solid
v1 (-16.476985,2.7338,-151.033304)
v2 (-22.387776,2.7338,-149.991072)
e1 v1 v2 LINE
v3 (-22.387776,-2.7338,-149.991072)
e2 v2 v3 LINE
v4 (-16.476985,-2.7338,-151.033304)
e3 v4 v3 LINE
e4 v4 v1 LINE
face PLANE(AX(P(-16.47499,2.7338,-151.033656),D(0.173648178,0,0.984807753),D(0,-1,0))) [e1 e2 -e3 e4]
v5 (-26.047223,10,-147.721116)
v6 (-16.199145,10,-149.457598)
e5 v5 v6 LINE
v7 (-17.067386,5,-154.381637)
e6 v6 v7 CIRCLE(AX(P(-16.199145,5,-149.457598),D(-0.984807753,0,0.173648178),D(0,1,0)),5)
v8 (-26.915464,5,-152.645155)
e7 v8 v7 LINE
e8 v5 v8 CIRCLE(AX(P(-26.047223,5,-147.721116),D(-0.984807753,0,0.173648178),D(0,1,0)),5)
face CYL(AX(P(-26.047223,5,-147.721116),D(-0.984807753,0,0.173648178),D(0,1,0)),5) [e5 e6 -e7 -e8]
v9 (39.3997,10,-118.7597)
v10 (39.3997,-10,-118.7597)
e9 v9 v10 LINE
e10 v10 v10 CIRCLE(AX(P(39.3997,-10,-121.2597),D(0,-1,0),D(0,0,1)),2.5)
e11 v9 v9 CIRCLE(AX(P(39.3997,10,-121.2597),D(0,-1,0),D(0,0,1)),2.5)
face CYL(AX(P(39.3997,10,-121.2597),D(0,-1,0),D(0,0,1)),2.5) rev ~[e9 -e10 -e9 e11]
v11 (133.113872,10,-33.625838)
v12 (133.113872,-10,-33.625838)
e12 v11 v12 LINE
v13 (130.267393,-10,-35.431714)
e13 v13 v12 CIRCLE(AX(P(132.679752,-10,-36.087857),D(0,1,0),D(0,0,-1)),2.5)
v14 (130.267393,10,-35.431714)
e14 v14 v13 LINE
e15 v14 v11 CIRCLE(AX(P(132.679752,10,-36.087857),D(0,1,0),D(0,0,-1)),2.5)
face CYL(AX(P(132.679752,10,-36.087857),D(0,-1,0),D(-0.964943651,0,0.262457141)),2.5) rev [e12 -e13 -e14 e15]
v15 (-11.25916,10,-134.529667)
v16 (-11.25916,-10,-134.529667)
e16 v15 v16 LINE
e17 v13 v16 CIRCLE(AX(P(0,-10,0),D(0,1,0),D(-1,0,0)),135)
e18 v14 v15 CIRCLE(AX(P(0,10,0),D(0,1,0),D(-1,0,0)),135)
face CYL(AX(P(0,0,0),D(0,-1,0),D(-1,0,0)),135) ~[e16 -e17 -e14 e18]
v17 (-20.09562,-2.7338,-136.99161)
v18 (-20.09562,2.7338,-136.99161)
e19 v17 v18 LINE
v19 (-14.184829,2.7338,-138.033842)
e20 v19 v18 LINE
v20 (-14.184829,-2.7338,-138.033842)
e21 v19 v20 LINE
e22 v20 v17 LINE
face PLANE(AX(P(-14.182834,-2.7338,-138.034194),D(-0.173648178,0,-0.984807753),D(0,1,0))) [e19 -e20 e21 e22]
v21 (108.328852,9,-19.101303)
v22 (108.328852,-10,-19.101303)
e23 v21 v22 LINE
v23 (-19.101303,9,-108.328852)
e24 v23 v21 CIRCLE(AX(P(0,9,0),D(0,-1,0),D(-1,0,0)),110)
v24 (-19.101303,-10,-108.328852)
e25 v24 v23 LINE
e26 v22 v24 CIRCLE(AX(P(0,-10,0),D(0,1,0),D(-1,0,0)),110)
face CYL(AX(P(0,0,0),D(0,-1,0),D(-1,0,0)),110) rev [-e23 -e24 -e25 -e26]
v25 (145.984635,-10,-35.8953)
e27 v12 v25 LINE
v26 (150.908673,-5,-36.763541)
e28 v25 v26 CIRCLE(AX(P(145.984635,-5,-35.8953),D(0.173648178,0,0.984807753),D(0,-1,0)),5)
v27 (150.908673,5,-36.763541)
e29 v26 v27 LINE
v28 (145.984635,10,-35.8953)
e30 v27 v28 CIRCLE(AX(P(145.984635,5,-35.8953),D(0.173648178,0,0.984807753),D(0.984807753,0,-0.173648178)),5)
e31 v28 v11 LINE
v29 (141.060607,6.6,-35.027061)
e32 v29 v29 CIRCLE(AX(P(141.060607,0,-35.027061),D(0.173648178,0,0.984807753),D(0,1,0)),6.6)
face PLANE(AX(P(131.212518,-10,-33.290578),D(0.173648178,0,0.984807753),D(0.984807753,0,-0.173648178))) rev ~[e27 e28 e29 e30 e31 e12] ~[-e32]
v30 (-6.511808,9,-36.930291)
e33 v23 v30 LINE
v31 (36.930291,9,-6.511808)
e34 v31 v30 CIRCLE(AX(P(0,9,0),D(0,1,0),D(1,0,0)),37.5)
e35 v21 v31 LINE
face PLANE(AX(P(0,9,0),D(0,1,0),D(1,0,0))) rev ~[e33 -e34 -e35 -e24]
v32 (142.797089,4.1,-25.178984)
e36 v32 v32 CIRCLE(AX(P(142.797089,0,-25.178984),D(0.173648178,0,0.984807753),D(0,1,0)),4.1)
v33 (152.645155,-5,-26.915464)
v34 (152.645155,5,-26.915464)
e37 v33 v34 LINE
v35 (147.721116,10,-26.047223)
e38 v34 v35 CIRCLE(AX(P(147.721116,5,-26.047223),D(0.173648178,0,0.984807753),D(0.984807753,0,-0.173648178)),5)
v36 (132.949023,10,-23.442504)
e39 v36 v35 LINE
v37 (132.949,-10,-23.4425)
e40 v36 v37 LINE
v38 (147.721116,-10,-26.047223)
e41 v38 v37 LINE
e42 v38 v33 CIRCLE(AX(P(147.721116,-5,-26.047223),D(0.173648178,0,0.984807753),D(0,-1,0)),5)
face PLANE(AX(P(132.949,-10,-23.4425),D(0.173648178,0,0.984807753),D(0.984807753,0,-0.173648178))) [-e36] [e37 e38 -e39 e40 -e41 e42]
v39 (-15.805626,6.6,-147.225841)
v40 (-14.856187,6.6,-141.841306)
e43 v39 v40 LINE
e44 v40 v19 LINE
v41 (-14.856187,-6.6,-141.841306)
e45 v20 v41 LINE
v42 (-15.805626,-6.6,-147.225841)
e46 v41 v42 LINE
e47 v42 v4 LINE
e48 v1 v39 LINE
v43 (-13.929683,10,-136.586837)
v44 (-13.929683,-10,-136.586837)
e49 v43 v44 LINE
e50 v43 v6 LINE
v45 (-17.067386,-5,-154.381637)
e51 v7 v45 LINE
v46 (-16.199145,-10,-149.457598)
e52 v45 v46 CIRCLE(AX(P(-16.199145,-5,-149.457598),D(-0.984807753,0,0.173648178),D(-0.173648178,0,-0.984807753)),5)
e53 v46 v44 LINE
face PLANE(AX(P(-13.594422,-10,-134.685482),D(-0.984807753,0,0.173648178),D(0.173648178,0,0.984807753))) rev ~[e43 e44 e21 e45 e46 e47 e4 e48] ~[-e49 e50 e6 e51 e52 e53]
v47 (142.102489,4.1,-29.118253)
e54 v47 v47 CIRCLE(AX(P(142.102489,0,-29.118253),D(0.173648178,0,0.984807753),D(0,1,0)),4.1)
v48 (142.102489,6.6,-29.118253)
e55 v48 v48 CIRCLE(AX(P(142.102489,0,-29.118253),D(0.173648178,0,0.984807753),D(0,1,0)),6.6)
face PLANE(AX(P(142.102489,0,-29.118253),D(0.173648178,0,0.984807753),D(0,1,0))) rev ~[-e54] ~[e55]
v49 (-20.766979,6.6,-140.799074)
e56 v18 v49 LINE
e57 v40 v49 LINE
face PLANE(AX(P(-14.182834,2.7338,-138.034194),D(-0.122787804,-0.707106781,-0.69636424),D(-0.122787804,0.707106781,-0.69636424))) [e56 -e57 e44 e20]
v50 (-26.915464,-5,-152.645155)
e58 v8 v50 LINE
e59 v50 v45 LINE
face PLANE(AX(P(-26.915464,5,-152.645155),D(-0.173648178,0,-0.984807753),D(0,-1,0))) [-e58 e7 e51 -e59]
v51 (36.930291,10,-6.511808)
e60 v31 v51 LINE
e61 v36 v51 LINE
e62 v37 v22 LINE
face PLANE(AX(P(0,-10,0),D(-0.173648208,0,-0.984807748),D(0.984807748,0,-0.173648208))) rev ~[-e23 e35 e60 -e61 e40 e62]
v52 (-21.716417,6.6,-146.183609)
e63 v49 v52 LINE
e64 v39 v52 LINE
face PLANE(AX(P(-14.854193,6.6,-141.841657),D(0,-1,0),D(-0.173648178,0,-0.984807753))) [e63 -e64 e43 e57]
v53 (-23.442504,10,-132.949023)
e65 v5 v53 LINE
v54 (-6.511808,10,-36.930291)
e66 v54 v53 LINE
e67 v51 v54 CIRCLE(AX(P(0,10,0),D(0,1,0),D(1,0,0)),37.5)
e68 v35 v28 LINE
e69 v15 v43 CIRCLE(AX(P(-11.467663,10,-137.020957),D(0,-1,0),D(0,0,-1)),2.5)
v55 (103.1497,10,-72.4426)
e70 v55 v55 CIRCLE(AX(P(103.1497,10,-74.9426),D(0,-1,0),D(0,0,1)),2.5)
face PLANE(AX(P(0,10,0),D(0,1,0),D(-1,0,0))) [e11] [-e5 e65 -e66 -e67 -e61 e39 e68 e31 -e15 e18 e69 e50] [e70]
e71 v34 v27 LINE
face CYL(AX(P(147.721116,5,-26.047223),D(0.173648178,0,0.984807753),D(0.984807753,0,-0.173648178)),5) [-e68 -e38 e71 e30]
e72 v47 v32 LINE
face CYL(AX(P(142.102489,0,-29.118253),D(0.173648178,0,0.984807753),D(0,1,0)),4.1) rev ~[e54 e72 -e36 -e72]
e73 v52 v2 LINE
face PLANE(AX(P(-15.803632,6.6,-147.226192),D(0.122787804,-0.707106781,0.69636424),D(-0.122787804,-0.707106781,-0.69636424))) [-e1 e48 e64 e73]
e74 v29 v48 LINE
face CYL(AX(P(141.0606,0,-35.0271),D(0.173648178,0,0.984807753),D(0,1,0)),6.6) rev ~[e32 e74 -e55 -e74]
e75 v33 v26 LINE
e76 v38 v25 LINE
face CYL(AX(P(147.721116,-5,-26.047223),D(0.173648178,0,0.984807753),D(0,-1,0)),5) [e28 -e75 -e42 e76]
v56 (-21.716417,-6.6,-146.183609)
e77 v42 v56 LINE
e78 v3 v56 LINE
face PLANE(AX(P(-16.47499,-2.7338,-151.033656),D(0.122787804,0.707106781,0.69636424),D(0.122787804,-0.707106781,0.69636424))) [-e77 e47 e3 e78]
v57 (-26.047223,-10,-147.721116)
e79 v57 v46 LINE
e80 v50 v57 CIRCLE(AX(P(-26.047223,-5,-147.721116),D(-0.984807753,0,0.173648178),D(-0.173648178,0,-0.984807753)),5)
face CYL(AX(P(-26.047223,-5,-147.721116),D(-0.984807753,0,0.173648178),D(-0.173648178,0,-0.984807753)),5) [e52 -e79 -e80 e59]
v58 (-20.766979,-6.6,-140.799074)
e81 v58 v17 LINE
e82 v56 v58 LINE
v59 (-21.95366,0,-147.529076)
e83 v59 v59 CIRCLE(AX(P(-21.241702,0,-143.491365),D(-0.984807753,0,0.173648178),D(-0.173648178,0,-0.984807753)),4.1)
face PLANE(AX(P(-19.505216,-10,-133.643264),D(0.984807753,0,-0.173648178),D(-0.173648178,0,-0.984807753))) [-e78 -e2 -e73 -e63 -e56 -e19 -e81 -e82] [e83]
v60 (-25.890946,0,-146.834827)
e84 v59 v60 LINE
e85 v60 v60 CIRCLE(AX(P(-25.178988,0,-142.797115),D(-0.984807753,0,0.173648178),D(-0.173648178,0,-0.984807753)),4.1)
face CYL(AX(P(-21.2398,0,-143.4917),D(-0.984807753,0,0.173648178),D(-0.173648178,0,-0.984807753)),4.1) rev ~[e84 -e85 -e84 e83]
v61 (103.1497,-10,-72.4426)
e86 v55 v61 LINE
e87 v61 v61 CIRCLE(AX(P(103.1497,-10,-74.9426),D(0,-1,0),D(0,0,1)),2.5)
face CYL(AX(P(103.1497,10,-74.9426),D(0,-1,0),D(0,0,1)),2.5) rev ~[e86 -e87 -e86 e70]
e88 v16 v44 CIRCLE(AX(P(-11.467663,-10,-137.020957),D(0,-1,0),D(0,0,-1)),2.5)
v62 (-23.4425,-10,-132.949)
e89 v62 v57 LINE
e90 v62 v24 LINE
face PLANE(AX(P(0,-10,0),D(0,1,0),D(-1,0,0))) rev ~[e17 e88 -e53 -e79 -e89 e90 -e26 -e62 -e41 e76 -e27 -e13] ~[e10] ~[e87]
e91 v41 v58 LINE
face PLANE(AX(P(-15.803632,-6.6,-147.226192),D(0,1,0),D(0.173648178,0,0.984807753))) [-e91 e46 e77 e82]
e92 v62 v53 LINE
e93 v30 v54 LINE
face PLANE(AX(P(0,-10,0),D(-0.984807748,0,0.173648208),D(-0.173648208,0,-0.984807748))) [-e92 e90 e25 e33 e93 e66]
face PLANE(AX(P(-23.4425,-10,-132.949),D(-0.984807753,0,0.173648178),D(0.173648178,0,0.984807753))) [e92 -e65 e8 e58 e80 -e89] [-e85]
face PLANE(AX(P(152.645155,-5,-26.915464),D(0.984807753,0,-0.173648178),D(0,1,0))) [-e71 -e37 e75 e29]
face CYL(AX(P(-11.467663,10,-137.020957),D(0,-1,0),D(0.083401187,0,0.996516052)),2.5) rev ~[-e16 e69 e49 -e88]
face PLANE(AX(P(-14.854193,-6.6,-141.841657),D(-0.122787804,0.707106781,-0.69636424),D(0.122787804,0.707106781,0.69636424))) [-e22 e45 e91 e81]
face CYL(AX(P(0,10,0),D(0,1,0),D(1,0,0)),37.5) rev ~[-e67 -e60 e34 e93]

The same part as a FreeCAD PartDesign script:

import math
import FreeCAD as App
import Part
import Sketcher

V = App.Vector
Q = App.Units.Quantity


def edges_at(feature, points):
    """Names of the edges that pass closest to the given points."""
    edges = feature.Shape.Edges
    near = lambda p: min(range(len(edges)), key=lambda i: edges[i].distToShape(Part.Vertex(*p))[0])
    return sorted({f"Edge{near(p) + 1}" for p in points})


def add_polygon(sketch, points):
    """Adds a closed chain of lines whose ends are joined by coincident constraints."""
    first, n = sketch.GeometryCount, len(points)
    for a, b in zip(points, points[1:] + points[:1]):
        sketch.addGeometry(Part.LineSegment(App.Vector(*a, 0), App.Vector(*b, 0)), False)
    for i in range(n):
        sketch.addConstraint(Sketcher.Constraint("Coincident", first + i, 2, first + (i + 1) % n, 1))

doc = App.newDocument("Part")
body = doc.addObject("PartDesign::Body", "Body")

sketch1 = body.newObject("Sketcher::SketchObject", "Sketch")
sketch1.AttachmentSupport = (doc.getObject("XZ_Plane"), [""])
sketch1.MapMode = "FlatFace"
sketch1.addGeometry([
    Part.Circle(V(0, 0, 0), V(0, 0, 1), 135),
    Part.Circle(V(0, 0, 0), V(0, 0, 1), 110),
], False)
sketch1.addConstraint([
    Sketcher.Constraint("Coincident", 0, 3, -1, 1),
    Sketcher.Constraint("Coincident", 1, 3, -1, 1),
    Sketcher.Constraint("Diameter", 0, 270.0),
    Sketcher.Constraint("Diameter", 1, 220.0),
])
pad1 = body.newObject("PartDesign::Pad", "Pad")
pad1.Profile = sketch1
pad1.Length = 20
pad1.Midplane = True

sketch2 = body.newObject("Sketcher::SketchObject", "Sketch001")
sketch2.AttachmentSupport = (doc.getObject("XZ_Plane"), [""])
sketch2.MapMode = "FlatFace"
sketch2.AttachmentOffset = App.Placement(V(0, 0, -10), App.Rotation())
sketch2.addGeometry([
    Part.Circle(V(0, 0, 0), V(0, 0, 1), 135),
    Part.Circle(V(0, 0, 0), V(0, 0, 1), 37.5),
], False)
sketch2.addConstraint([
    Sketcher.Constraint("Coincident", 0, 3, -1, 1),
    Sketcher.Constraint("Coincident", 1, 3, -1, 1),
    Sketcher.Constraint("Diameter", 0, 270.0),
    Sketcher.Constraint("Diameter", 1, 75.0),
])
pad2 = body.newObject("PartDesign::Pad", "Pad001")
pad2.Profile = sketch2
pad2.Length = 1

sketch3 = body.newObject("Sketcher::SketchObject", "Sketch002")
sketch3.AttachmentSupport = (doc.getObject("XZ_Plane"), [""])
sketch3.MapMode = "FlatFace"
sketch3.AttachmentOffset = App.Placement(V(0, 0, -10), App.Rotation())
sketch3.addGeometry([
    Part.Circle(V(127.5, 0, 0), V(0, 0, 1), 2.5),
    Part.Circle(V(103.1497, 74.9426, 0), V(0, 0, 1), 2.5),
    Part.Circle(V(39.3997, 121.2597, 0), V(0, 0, 1), 2.5),
    Part.Circle(V(-39.3997, 121.2597, 0), V(0, 0, 1), 2.5),
    Part.Circle(V(-103.1497, 74.9426, 0), V(0, 0, 1), 2.5),
    Part.Circle(V(-127.5, 0, 0), V(0, 0, 1), 2.5),
    Part.Circle(V(-103.1497, -74.9426, 0), V(0, 0, 1), 2.5),
    Part.Circle(V(-39.3997, -121.2597, 0), V(0, 0, 1), 2.5),
    Part.Circle(V(39.3997, -121.2597, 0), V(0, 0, 1), 2.5),
    Part.Circle(V(103.1497, -74.9426, 0), V(0, 0, 1), 2.5),
], False)
sketch3.addConstraint([
    Sketcher.Constraint("Equal", 0, 1),
    Sketcher.Constraint("Equal", 1, 2),
    Sketcher.Constraint("Equal", 2, 3),
    Sketcher.Constraint("Equal", 3, 4),
    Sketcher.Constraint("Equal", 4, 5),
    Sketcher.Constraint("Equal", 5, 6),
    Sketcher.Constraint("Equal", 6, 7),
    Sketcher.Constraint("Equal", 7, 8),
    Sketcher.Constraint("Equal", 8, 9),
    Sketcher.Constraint("Symmetric", 0, 3, 5, 3, -1, 1),
    Sketcher.Constraint("Symmetric", 1, 3, 6, 3, -1, 1),
    Sketcher.Constraint("Symmetric", 2, 3, 7, 3, -1, 1),
    Sketcher.Constraint("Symmetric", 3, 3, 8, 3, -1, 1),
    Sketcher.Constraint("Symmetric", 4, 3, 9, 3, -1, 1),
    Sketcher.Constraint("Symmetric", 2, 3, 3, 3, -2),
    Sketcher.Constraint("Symmetric", 1, 3, 4, 3, -2),
    Sketcher.Constraint("PointOnObject", 0, 3, -1),
    Sketcher.Constraint("Diameter", 0, 5.0),
    Sketcher.Constraint("DistanceX", 5, 3, 0, 3, 255.0),
    Sketcher.Constraint("DistanceX", 2, 3, 1, 3, 63.75),
    Sketcher.Constraint("DistanceY", 1, 3, 2, 3, 46.317),
    Sketcher.Constraint("DistanceX", -1, 1, 1, 3, 103.1497),
    Sketcher.Constraint("DistanceY", -1, 1, 1, 3, 74.9426),
])
doc.recompute()
hole = body.newObject("PartDesign::Hole", "Hole")
hole.Profile = sketch3
hole.ThreadType = "None"
hole.Diameter = 5
hole.DepthType = "ThroughAll"
hole.Reversed = True

sketch4 = body.newObject("Sketcher::SketchObject", "Sketch003")
sketch4.AttachmentSupport = (doc.getObject("XZ_Plane"), [""])
sketch4.MapMode = "FlatFace"
sketch4.AttachmentOffset = App.Placement(V(0, 0, 10), App.Rotation())
sketch4.addGeometry([
    Part.ArcOfCircle(Part.Circle(V(0, 0, 0), V(0, 0, 1), 135), math.radians(-10.000002), math.radians(259.999998)),
    Part.LineSegment(V(-23.4425, -132.949, 0), V(0, 0, 0)),
    Part.LineSegment(V(0, 0, 0), V(132.949, -23.4425, 0)),
], False)
sketch4.addConstraint([
    Sketcher.Constraint("Coincident", 0, 2, 1, 1),
    Sketcher.Constraint("Coincident", 1, 2, 2, 1),
    Sketcher.Constraint("Coincident", 2, 2, 0, 1),
    Sketcher.Constraint("Coincident", 0, 3, -1, 1),
    Sketcher.Constraint("Coincident", 1, 2, -1, 1),
    Sketcher.Constraint("Perpendicular", 1, 2),
    Sketcher.Constraint("Radius", 0, 135.0),
    Sketcher.Constraint("Angle", 2, Q("-10 deg")),
])
pocket1 = body.newObject("PartDesign::Pocket", "Pocket")
pocket1.Profile = sketch4
pocket1.Type = "ThroughAll"

sketch5 = body.newObject("Sketcher::SketchObject", "Sketch004")
sketch5.Placement = App.Placement(V(-23.4425, -10, -132.949), App.Rotation(V(0.173648178, 0, 0.984807753), V(0, 1, 0), V(-0.984807753, 0, 0.173648178), "ZXY"))
sketch5.addGeometry([
    Part.LineSegment(V(2.5, 0, 0), V(2.5, 20, 0)),
    Part.LineSegment(V(2.5, 20, 0), V(-15, 20, 0)),
    Part.ArcOfCircle(Part.Circle(V(-15, 15, 0), V(0, 0, 1), 5), math.radians(90), math.radians(180)),
    Part.LineSegment(V(-20, 15, 0), V(-20, 5, 0)),
    Part.ArcOfCircle(Part.Circle(V(-15, 5, 0), V(0, 0, 1), 5), math.radians(180), math.radians(270)),
    Part.LineSegment(V(-15, 0, 0), V(2.5, 0, 0)),
], False)
sketch5.addConstraint([
    Sketcher.Constraint("Coincident", 0, 2, 1, 1),
    Sketcher.Constraint("Tangent", 1, 2, 2, 1),
    Sketcher.Constraint("Tangent", 2, 2, 3, 1),
    Sketcher.Constraint("Tangent", 3, 2, 4, 1),
    Sketcher.Constraint("Tangent", 4, 2, 5, 1),
    Sketcher.Constraint("Coincident", 5, 2, 0, 1),
    Sketcher.Constraint("Vertical", 0),
    Sketcher.Constraint("Horizontal", 1),
    Sketcher.Constraint("Vertical", 3),
    Sketcher.Constraint("Horizontal", 5),
    Sketcher.Constraint("Equal", 2, 4),
    Sketcher.Constraint("PointOnObject", 4, 2, -1),
    Sketcher.Constraint("Radius", 2, 5.0),
    Sketcher.Constraint("DistanceY", 0, 1, 0, 2, 20.0),
    Sketcher.Constraint("DistanceX", 2, 2, -1, 1, 20.0),
    Sketcher.Constraint("DistanceX", 2, 2, 0, 2, 22.5),
])
pad3 = body.newObject("PartDesign::Pad", "Pad002")
pad3.Profile = sketch5
pad3.Length = 10
pad3.Reversed = True
doc.recompute()

fillet = body.newObject("PartDesign::Fillet", "Fillet")
fillet.Base = (pad3, edges_at(pad3, [(-13.53, 0, -134.32)]))
fillet.Radius = 2.5

sketch6 = body.newObject("Sketcher::SketchObject", "Sketch005")
sketch6.Placement = App.Placement(V(132.949, -10, -23.4425), App.Rotation(V(0.984807753, 0, -0.173648178), V(0, 1, 0), V(0.173648178, 0, 0.984807753), "ZXY"))
sketch6.addGeometry([
    Part.LineSegment(V(-2.5, 20, 0), V(-2.5, 0, 0)),
    Part.LineSegment(V(-2.5, 0, 0), V(15, 0, 0)),
    Part.ArcOfCircle(Part.Circle(V(15, 5, 0), V(0, 0, 1), 5), math.radians(-90), math.radians(0)),
    Part.LineSegment(V(20, 5, 0), V(20, 15, 0)),
    Part.ArcOfCircle(Part.Circle(V(15, 15, 0), V(0, 0, 1), 5), math.radians(0), math.radians(90)),
    Part.LineSegment(V(15, 20, 0), V(-2.5, 20, 0)),
], False)
sketch6.addConstraint([
    Sketcher.Constraint("Coincident", 0, 2, 1, 1),
    Sketcher.Constraint("Tangent", 1, 2, 2, 1),
    Sketcher.Constraint("Tangent", 2, 2, 3, 1),
    Sketcher.Constraint("Tangent", 3, 2, 4, 1),
    Sketcher.Constraint("Tangent", 4, 2, 5, 1),
    Sketcher.Constraint("Coincident", 5, 2, 0, 1),
    Sketcher.Constraint("Vertical", 0),
    Sketcher.Constraint("Horizontal", 1),
    Sketcher.Constraint("Vertical", 3),
    Sketcher.Constraint("Horizontal", 5),
    Sketcher.Constraint("Equal", 2, 4),
    Sketcher.Constraint("PointOnObject", 0, 2, -1),
    Sketcher.Constraint("Radius", 2, 5.0),
    Sketcher.Constraint("DistanceY", 0, 2, 0, 1, 20.0),
    Sketcher.Constraint("DistanceX", -1, 1, 2, 2, 20.0),
    Sketcher.Constraint("DistanceX", 0, 2, 2, 2, 22.5),
])
pad4 = body.newObject("PartDesign::Pad", "Pad003")
pad4.Profile = sketch6
pad4.Length = 10
pad4.Reversed = True
doc.recompute()

fillet2 = body.newObject("PartDesign::Fillet", "Fillet001")
fillet2.Base = (pad4, edges_at(pad4, [(130.847, 0, -33.226)]))
fillet2.Radius = 2.5

sketch7 = body.newObject("Sketcher::SketchObject", "Sketch006")
sketch7.Placement = App.Placement(V(-13.5944, -10, -134.6855), App.Rotation(V(-0.173648178, 0, -0.984807753), V(0, 1, 0), V(0.984807753, 0, -0.173648178), "ZXY"))
add_polygon(sketch7, [(16.6, 7.2662), (16.6, 12.7338), (12.7338, 16.6), (7.2662, 16.6), (3.4, 12.7338), (3.4, 7.2662), (7.2662, 3.4), (12.7338, 3.4)])
sketch7.addConstraint([
    Sketcher.Constraint("Vertical", 0),
    Sketcher.Constraint("Horizontal", 2),
    Sketcher.Constraint("Vertical", 4),
    Sketcher.Constraint("Horizontal", 6),
    Sketcher.Constraint("Perpendicular", 1, 3),
    Sketcher.Constraint("Perpendicular", 3, 5),
    Sketcher.Constraint("Perpendicular", 5, 7),
    Sketcher.Constraint("Horizontal", 0, 2, 3, 2),
    Sketcher.Constraint("Horizontal", 4, 2, 7, 2),
    Sketcher.Constraint("Vertical", 2, 2, 5, 2),
    Sketcher.Constraint("Vertical", 1, 2, 6, 2),
    Sketcher.Constraint("Equal", 6, 0),
    Sketcher.Constraint("DistanceX", 3, 2, 0, 2, 13.2),
    Sketcher.Constraint("DistanceX", -1, 1, 0, 2, 16.6),
    Sketcher.Constraint("DistanceY", -1, 1, 1, 2, 16.6),
    Sketcher.Constraint("DistanceX", 2, 2, 2, 1, 5.4676),
])
pocket2 = body.newObject("PartDesign::Pocket", "Pocket001")
pocket2.Profile = sketch7
pocket2.Length = 6

sketch8 = body.newObject("Sketcher::SketchObject", "Sketch007")
sketch8.Placement = App.Placement(V(3.939184, 0, -0.694584), App.Rotation(V(-0.173648178, 0, -0.984807753), V(0, 1, 0), V(0.984807753, 0, -0.173648178), "ZXY"))
sketch8.addGeometry(Part.Circle(V(144.999991, 0, 0), V(0, 0, 1), 4.1), False)
sketch8.addConstraint([
    Sketcher.Constraint("PointOnObject", 0, 3, -1),
    Sketcher.Constraint("Diameter", 0, 8.2),
    Sketcher.Constraint("DistanceX", -1, 1, 0, 3, 145.0),
])
doc.recompute()
hole2 = body.newObject("PartDesign::Hole", "Hole001")
hole2.Profile = sketch8
hole2.ThreadType = "None"
hole2.Diameter = 8.2
hole2.DepthType = "ThroughAll"

sketch9 = body.newObject("Sketcher::SketchObject", "Sketch008")
sketch9.Placement = App.Placement(V(-1.736489, 0, -9.84812), App.Rotation(V(-0.984807753, 0, 0.173648178), V(0, 1, 0), V(-0.173648178, 0, -0.984807753), "ZXY"))
sketch9.addGeometry(Part.Circle(V(-144.999965, 0, 0), V(0, 0, 1), 4.1), False)
sketch9.addConstraint([
    Sketcher.Constraint("PointOnObject", 0, 3, -1),
    Sketcher.Constraint("Diameter", 0, 8.2),
    Sketcher.Constraint("DistanceX", 0, 3, -1, 1, 145.0),
])
doc.recompute()
hole3 = body.newObject("PartDesign::Hole", "Hole002")
hole3.Profile = sketch9
hole3.ThreadType = "None"
hole3.Diameter = 8.2
hole3.DepthType = "ThroughAll"
hole3.HoleCutType = "Counterbore"
hole3.HoleCutDiameter = 13.2
hole3.HoleCutDepth = 6

doc.recompute()
